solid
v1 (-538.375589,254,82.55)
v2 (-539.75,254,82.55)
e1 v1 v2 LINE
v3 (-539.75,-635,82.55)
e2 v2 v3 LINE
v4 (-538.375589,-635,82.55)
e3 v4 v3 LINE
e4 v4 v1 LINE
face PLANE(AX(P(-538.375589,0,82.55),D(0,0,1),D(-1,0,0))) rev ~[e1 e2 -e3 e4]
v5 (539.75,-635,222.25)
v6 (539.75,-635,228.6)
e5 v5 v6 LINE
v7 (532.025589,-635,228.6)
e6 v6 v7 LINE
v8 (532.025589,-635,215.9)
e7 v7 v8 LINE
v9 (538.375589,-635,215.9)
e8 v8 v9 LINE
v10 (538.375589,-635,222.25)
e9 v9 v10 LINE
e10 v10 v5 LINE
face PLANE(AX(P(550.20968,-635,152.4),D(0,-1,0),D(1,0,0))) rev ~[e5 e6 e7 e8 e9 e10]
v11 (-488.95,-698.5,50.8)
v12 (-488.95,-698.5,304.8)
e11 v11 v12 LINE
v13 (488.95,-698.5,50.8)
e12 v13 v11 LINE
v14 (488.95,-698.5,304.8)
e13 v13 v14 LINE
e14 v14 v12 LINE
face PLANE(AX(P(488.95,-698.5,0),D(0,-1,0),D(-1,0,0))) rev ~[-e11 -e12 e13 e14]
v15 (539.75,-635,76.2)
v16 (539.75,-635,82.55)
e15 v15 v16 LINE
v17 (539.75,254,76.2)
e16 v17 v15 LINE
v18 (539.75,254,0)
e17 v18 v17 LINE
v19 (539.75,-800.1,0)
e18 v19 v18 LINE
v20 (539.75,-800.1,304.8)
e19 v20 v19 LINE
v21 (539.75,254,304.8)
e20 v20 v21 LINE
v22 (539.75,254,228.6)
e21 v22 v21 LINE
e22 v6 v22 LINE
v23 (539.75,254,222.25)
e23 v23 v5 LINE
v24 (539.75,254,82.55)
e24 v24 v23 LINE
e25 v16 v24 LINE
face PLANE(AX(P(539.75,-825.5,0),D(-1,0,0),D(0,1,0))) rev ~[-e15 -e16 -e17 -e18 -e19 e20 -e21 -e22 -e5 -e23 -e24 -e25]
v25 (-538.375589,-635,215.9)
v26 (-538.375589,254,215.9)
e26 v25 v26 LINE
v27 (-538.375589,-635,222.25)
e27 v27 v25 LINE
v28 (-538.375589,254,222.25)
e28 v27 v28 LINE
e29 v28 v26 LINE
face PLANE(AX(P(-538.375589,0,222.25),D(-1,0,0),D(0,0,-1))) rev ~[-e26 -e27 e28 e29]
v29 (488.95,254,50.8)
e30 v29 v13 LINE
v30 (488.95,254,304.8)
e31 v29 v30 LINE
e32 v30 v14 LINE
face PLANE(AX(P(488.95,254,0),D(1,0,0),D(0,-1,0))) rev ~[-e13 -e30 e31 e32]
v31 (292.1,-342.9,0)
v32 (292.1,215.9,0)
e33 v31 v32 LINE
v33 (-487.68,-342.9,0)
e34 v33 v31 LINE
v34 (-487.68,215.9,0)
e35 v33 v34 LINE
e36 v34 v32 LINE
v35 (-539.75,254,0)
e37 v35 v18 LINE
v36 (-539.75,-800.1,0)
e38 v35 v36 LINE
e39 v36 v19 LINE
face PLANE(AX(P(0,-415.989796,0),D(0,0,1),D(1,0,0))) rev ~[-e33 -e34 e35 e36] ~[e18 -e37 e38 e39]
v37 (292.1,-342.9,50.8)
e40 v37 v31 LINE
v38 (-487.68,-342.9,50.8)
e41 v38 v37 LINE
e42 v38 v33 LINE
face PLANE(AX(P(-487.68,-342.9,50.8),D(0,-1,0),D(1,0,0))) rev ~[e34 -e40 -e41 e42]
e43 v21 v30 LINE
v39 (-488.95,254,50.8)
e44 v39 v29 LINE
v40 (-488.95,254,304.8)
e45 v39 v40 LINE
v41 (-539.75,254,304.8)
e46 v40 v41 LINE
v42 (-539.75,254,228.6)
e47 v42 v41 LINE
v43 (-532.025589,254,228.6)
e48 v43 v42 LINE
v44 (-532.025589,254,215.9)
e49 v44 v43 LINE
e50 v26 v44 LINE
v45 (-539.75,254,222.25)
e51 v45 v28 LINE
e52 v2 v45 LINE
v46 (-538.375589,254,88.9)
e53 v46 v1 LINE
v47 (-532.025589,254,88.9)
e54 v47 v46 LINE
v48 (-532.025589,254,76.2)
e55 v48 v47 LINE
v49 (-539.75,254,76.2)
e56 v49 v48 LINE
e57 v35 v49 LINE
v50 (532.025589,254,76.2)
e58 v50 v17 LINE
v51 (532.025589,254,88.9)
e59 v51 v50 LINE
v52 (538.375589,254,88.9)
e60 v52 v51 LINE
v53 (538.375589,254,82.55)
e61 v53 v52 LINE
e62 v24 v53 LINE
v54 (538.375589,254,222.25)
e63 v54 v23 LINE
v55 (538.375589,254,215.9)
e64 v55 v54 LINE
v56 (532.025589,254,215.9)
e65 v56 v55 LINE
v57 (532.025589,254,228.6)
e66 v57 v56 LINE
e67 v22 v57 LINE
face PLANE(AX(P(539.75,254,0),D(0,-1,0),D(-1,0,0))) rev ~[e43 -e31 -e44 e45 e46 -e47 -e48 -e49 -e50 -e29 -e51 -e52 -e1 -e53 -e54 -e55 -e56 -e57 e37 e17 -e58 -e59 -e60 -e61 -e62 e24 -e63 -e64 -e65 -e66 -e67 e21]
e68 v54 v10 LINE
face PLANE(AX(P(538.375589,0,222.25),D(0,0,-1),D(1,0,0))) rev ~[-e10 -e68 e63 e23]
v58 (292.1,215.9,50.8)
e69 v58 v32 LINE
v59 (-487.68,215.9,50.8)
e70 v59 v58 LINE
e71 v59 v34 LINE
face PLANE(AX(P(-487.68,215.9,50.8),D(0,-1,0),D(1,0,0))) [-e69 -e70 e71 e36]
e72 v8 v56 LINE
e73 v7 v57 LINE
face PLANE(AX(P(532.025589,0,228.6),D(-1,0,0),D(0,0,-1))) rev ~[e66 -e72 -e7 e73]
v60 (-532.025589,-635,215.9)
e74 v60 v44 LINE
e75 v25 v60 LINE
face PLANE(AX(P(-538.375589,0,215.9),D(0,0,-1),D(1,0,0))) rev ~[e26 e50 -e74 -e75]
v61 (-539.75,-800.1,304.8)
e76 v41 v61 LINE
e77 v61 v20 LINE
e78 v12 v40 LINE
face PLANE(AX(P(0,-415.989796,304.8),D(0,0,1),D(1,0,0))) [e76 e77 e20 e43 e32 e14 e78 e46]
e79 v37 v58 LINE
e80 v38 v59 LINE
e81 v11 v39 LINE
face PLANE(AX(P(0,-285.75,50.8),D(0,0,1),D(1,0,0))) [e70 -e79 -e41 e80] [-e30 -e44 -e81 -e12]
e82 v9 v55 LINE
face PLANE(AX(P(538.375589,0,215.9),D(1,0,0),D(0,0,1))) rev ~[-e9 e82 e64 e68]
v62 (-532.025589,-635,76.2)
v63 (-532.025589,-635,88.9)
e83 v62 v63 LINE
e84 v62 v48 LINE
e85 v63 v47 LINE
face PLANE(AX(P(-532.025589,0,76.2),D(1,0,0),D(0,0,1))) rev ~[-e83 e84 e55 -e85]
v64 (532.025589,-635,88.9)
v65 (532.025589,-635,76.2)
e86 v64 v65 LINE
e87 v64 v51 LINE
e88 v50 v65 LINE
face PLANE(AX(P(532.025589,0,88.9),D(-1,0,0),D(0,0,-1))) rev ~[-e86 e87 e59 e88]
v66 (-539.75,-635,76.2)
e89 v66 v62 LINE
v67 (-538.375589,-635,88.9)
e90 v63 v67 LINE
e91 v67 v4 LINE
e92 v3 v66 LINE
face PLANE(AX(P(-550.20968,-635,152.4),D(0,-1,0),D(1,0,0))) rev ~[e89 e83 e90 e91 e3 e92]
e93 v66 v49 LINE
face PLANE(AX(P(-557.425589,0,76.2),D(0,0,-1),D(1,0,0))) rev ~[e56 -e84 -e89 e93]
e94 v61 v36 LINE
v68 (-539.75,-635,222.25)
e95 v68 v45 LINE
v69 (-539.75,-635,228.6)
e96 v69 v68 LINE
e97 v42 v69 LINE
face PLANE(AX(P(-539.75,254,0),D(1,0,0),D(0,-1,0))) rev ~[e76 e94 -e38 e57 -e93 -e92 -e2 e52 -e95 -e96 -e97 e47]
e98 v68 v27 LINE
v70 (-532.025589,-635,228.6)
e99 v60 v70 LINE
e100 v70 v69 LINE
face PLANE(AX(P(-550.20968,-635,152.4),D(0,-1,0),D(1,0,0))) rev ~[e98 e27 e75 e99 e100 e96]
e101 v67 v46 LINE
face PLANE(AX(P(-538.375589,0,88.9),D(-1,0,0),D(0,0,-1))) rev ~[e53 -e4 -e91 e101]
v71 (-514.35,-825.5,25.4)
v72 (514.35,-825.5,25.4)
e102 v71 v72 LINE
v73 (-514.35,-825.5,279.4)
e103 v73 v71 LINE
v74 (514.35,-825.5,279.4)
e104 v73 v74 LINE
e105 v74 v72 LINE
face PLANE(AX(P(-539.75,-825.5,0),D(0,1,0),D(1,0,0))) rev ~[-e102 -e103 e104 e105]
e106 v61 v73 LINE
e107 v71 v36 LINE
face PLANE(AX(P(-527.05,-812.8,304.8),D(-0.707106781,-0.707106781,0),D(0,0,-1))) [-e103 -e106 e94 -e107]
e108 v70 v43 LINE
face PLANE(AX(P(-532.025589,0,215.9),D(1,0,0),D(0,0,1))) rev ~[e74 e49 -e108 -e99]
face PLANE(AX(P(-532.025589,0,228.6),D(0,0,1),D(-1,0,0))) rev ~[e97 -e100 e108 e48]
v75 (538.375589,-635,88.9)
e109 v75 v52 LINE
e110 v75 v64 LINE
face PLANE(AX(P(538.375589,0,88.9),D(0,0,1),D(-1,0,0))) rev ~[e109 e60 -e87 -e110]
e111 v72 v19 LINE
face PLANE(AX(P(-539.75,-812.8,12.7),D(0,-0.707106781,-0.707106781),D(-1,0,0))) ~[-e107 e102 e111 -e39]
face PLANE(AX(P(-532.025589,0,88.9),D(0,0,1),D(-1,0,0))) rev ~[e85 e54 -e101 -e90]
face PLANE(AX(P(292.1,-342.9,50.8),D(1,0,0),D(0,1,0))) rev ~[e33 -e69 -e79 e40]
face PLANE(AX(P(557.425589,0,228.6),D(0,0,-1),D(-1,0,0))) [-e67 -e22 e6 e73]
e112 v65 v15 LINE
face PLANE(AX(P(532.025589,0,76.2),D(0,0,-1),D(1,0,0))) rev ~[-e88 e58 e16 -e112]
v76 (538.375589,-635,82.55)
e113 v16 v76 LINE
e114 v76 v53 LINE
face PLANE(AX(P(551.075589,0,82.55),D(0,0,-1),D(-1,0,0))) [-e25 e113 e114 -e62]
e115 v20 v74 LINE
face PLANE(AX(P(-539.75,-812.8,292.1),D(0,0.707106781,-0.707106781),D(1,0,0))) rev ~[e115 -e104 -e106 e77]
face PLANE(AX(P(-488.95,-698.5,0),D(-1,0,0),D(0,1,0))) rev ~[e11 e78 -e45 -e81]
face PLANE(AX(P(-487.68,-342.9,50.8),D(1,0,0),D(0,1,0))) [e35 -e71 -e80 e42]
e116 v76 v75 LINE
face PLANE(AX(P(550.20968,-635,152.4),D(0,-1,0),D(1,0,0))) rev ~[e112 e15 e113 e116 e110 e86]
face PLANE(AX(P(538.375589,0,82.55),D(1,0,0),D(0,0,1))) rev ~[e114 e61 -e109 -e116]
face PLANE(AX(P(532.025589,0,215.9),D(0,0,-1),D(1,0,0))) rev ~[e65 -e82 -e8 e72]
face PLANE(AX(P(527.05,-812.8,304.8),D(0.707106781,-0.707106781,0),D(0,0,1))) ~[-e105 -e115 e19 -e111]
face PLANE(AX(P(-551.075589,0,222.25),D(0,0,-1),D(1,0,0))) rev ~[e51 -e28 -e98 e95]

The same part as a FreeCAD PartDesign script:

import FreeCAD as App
import Part
import Sketcher
from FreeCAD import Vector
Q = App.Units.Quantity


def edges_at(feature, points):
    """Names of the edges that pass closest to the given points."""
    edges = feature.Shape.Edges
    near = lambda p: min(range(len(edges)), key=lambda i: edges[i].distToShape(Part.Vertex(*p))[0])
    return sorted({f"Edge{near(p) + 1}" for p in points})


def add_polygon(sketch, points):
    """Adds a closed chain of lines whose ends are joined by coincident constraints."""
    first, n = sketch.GeometryCount, len(points)
    for a, b in zip(points, points[1:] + points[:1]):
        sketch.addGeometry(Part.LineSegment(App.Vector(*a, 0), App.Vector(*b, 0)), False)
    for i in range(n):
        sketch.addConstraint(Sketcher.Constraint("Coincident", first + i, 2, first + (i + 1) % n, 1))

doc = App.newDocument("Part")
body = doc.addObject("PartDesign::Body", "Body")

# Sketch on XY plane
sketch1 = body.newObject("Sketcher::SketchObject", "Sketch")
sketch1.AttachmentSupport = (doc.getObject("XY_Plane"), [""])
sketch1.MapMode = "FlatFace"
add_polygon(sketch1, [(540, -826), (540, 254), (489, 254), (489, -698), (-489, -698), (-489, 254), (-540, 254), (-540, -826)])  # lines 0-7
sketch1.addConstraint([
    Sketcher.Constraint("Vertical", 0),
    Sketcher.Constraint("Horizontal", 1),
    Sketcher.Constraint("Vertical", 2),
    Sketcher.Constraint("Horizontal", 3),
    Sketcher.Constraint("Vertical", 4),
    Sketcher.Constraint("Horizontal", 5),
    Sketcher.Constraint("Vertical", 6),
    Sketcher.Constraint("Horizontal", 7),
    Sketcher.Constraint("Symmetric", 1, 2, 4, 2, -2),
    Sketcher.Constraint("Equal", 1, 5),
    Sketcher.Constraint("Equal", 7, 0),
    Sketcher.Constraint("DistanceX", 1, 2, 1, 1, Q("2 in")),
    Sketcher.Constraint("DistanceX", 3, 2, 3, 1, Q("38.5 in")),
    Sketcher.Constraint("DistanceY", 2, 2, 2, 1, Q("37.5 in")),
    Sketcher.Constraint("DistanceY", -1, 1, 0, 2, Q("10 in")),
])
pad1 = body.newObject("PartDesign::Pad", "Pad")
pad1.Profile = sketch1
pad1.Length = Q("12 in")

# Sketch on XY plane
sketch2 = body.newObject("Sketcher::SketchObject", "Sketch001")
sketch2.AttachmentSupport = (doc.getObject("XY_Plane"), [""])
sketch2.MapMode = "FlatFace"
add_polygon(sketch2, [(-540, 254), (-540, -826), (540, -826), (540, 254)])  # lines 0-3
sketch2.addConstraint([
    Sketcher.Constraint("Vertical", 0),
    Sketcher.Constraint("Horizontal", 1),
    Sketcher.Constraint("Vertical", 2),
    Sketcher.Constraint("Horizontal", 3),
    Sketcher.Constraint("Equal", 3, 0),
    Sketcher.Constraint("DistanceX", 1, 1, 1, 2, Q("42.5 in")),
    Sketcher.Constraint("DistanceY", -1, 1, 2, 2, Q("10 in")),
    Sketcher.Constraint("DistanceX", 0, 2, -1, 1, Q("21.25 in")),
])
pad2 = body.newObject("PartDesign::Pad", "Pad001")
pad2.Profile = sketch2
pad2.Length = Q("2 in")
doc.recompute()

chamfer = body.newObject("PartDesign::Chamfer", "Chamfer")
chamfer.Base = (pad2, edges_at(pad2, [
    (0, -825.5, 0),
    (-539.75, -825.5, 152.4),
    (0, -825.5, 304.8),
    (539.75, -825.5, 152.4),
]))
chamfer.Size = Q("1 in")

# Sketch on XY plane
sketch3 = body.newObject("Sketcher::SketchObject", "Sketch002")
sketch3.AttachmentSupport = (doc.getObject("XY_Plane"), [""])
sketch3.MapMode = "FlatFace"
sketch3.AttachmentOffset = App.Placement(Vector(0, 0, 2 * 25.4), App.Rotation())
sketch3.addGeometry(Part.Circle(Vector(0, 0, 0), Vector(0, 0, 1), 64), False)
sketch3.addConstraint([
    Sketcher.Constraint("Coincident", 0, 3, -1, 1),
    Sketcher.Constraint("Diameter", 0, Q("5 in")),
])
pocket1 = body.newObject("PartDesign::Pocket", "Pocket")
pocket1.Profile = sketch3
pocket1.Type = "ThroughAll"

# Sketch on XY plane
sketch4 = body.newObject("Sketcher::SketchObject", "Sketch003")
sketch4.AttachmentSupport = (doc.getObject("XY_Plane"), [""])
sketch4.MapMode = "FlatFace"
sketch4.AttachmentOffset = App.Placement(Vector(0, 0, 2 * 25.4), App.Rotation())
add_polygon(sketch4, [(-488, 216), (-488, -343), (292, -343), (292, 216)])  # lines 0-3
sketch4.addGeometry(Part.Circle(Vector(0, 0, 0), Vector(0, 0, 1), 64), False)  # 4
sketch4.addConstraint([
    Sketcher.Constraint("Vertical", 0),
    Sketcher.Constraint("Horizontal", 1),
    Sketcher.Constraint("Vertical", 2),
    Sketcher.Constraint("Horizontal", 3),
    Sketcher.Constraint("Coincident", 4, 3, -1, 1),
    Sketcher.Constraint("Diameter", 4, Q("5 in")),
    Sketcher.Constraint("DistanceY", 0, 2, 0, 1, Q("22 in")),
    Sketcher.Constraint("DistanceX", 1, 1, 1, 2, Q("30.7 in")),
    Sketcher.Constraint("DistanceX", 0, 2, -1, 1, Q("19.2 in")),
    Sketcher.Constraint("DistanceY", 0, 2, -1, 1, Q("13.5 in")),
])
pocket2 = body.newObject("PartDesign::Pocket", "Pocket001")
pocket2.Profile = sketch4
pocket2.Type = "ThroughAll"

# Sketch on XZ plane
sketch5 = body.newObject("Sketcher::SketchObject", "Sketch004")
sketch5.AttachmentSupport = (doc.getObject("XZ_Plane"), [""])
sketch5.MapMode = "FlatFace"
add_polygon(sketch5, [(557, 76), (557, 229), (532, 229), (532, 216), (538, 216), (538, 222), (551, 222), (551, 83), (538, 83), (538, 89), (532, 89), (532, 76)])  # lines 0-11
add_polygon(sketch5, [(-532, 89), (-538, 89), (-538, 83), (-551, 83), (-551, 222), (-538, 222), (-538, 216), (-532, 216), (-532, 229), (-557, 229), (-557, 76), (-532, 76)])  # lines 12-23
sketch5.addConstraint([
    Sketcher.Constraint("Vertical", 0),
    Sketcher.Constraint("Horizontal", 1),
    Sketcher.Constraint("Vertical", 2),
    Sketcher.Constraint("Horizontal", 3),
    Sketcher.Constraint("Vertical", 4),
    Sketcher.Constraint("Horizontal", 5),
    Sketcher.Constraint("Vertical", 6),
    Sketcher.Constraint("Horizontal", 7),
    Sketcher.Constraint("Vertical", 8),
    Sketcher.Constraint("Horizontal", 9),
    Sketcher.Constraint("Vertical", 10),
    Sketcher.Constraint("Horizontal", 11),
    Sketcher.Constraint("Horizontal", 12),
    Sketcher.Constraint("Vertical", 13),
    Sketcher.Constraint("Horizontal", 14),
    Sketcher.Constraint("Vertical", 15),
    Sketcher.Constraint("Horizontal", 16),
    Sketcher.Constraint("Vertical", 17),
    Sketcher.Constraint("Horizontal", 18),
    Sketcher.Constraint("Vertical", 19),
    Sketcher.Constraint("Horizontal", 20),
    Sketcher.Constraint("Vertical", 21),
    Sketcher.Constraint("Horizontal", 22),
    Sketcher.Constraint("Vertical", 23),
    Sketcher.Constraint("Symmetric", 8, 2, 12, 2, -2),
    Sketcher.Constraint("Symmetric", 6, 2, 14, 2, -2),
    Sketcher.Constraint("Symmetric", 4, 2, 16, 2, -2),
    Sketcher.Constraint("Symmetric", 2, 2, 18, 2, -2),
    Sketcher.Constraint("Symmetric", 0, 2, 20, 2, -2),
    Sketcher.Constraint("Symmetric", 10, 2, 22, 2, -2),
    Sketcher.Constraint("Vertical", 4, 2, 7, 2),
    Sketcher.Constraint("Vertical", 2, 2, 9, 2),
    Sketcher.Constraint("Equal", 16, 2),
    Sketcher.Constraint("Equal", 18, 4),
    Sketcher.Constraint("Equal", 4, 8),
    Sketcher.Constraint("Equal", 2, 10),
    Sketcher.Constraint("DistanceX", 1, 2, 1, 1, Q("1 in")),
    Sketcher.Constraint("DistanceY", 0, 1, 0, 2, Q("6 in")),
    Sketcher.Constraint("DistanceX", 5, 1, 5, 2, Q("0.5 in")),
    Sketcher.Constraint("DistanceY", 6, 2, 6, 1, Q("5.5 in")),
    Sketcher.Constraint("DistanceY", -1, 1, 0, 2, Q("9 in")),
    Sketcher.Constraint("DistanceX", -1, 1, 0, 2, 557.425589),
])
pocket3 = body.newObject("PartDesign::Pocket", "Pocket002")
pocket3.Profile = sketch5
pocket3.Type = "TwoLengths"
pocket3.Length = Q("10 in")
pocket3.Length2 = Q("25 in")

doc.recompute()
